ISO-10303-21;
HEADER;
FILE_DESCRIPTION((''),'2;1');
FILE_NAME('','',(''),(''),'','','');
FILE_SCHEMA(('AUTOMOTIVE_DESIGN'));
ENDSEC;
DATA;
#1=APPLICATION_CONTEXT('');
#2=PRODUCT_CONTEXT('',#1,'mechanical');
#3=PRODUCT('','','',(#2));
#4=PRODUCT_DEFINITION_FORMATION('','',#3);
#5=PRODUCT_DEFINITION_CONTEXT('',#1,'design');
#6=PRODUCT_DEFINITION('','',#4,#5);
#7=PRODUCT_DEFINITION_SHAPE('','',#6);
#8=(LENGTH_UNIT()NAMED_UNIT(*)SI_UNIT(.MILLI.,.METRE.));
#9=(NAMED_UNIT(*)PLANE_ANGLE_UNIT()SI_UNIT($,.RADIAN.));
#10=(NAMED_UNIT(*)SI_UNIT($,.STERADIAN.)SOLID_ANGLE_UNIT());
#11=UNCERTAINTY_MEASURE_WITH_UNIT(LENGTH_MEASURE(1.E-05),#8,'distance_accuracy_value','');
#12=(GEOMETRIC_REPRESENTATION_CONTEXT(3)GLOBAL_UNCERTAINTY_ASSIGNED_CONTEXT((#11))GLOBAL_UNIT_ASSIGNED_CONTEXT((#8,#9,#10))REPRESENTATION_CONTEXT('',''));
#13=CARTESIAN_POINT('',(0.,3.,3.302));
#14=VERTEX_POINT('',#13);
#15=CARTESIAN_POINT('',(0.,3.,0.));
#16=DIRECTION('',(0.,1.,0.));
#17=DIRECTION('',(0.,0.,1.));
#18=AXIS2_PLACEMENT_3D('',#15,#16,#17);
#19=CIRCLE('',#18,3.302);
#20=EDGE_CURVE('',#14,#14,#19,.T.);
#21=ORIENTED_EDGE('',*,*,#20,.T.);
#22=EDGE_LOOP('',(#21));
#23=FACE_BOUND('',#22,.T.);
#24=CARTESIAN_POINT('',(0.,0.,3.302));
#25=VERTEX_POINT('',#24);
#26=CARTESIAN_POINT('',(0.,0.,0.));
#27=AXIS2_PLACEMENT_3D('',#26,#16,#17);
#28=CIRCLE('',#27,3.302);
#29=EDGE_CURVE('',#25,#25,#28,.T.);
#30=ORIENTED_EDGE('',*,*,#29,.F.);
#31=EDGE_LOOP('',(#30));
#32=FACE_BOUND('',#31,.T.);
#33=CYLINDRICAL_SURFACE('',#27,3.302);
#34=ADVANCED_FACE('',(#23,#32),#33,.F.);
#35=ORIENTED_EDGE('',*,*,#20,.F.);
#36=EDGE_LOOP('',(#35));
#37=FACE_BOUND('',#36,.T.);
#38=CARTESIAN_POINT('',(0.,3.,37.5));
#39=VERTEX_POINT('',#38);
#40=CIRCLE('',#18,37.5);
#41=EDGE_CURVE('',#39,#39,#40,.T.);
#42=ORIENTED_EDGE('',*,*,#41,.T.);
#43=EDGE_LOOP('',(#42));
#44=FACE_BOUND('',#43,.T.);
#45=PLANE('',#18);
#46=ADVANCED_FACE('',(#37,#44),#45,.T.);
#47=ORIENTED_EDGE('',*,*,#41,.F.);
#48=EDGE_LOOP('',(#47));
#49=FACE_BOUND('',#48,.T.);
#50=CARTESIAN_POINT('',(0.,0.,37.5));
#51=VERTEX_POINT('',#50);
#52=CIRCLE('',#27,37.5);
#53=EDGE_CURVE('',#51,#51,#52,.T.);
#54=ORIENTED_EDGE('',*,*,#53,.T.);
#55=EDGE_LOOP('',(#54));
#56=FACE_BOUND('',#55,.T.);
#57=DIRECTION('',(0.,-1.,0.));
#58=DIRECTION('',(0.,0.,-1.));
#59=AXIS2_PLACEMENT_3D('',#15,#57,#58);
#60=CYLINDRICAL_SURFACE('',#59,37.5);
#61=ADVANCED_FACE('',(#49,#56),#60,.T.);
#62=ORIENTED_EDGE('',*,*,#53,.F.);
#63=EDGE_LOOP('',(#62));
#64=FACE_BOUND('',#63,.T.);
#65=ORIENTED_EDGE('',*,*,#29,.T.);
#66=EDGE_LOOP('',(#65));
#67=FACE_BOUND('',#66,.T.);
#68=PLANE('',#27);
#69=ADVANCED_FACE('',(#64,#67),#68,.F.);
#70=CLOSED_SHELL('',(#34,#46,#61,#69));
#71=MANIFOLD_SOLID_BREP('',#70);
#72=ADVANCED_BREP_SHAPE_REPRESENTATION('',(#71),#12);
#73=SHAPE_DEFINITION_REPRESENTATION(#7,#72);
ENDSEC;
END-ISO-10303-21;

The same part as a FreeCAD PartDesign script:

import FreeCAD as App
import Part
import Sketcher
Q = App.Units.Quantity

doc = App.newDocument("Part")
body = doc.addObject("PartDesign::Body", "Body")

# Sketch on XZ plane
sketch1 = doc.addObject("Sketcher::SketchObject", "Sketch")
body.addObject(sketch1)
sketch1.AttachmentSupport = (doc.XZ_Plane, [""])
sketch1.MapMode = "FlatFace"
sketch1.addGeometry(Part.Circle(App.Vector(0, 0, 0), App.Vector(0, 0, 1), 38), False)
sketch1.addConstraint(Sketcher.Constraint("Coincident", 0, 3, -1, 1))
sketch1.addConstraint(Sketcher.Constraint("Diameter", 0, Q("75 mm")))
pad1 = doc.addObject("PartDesign::Pad", "Pad")
body.addObject(pad1)
pad1.Profile = sketch1
pad1.Length = 3
pad1.Reversed = True

# Sketch on XZ plane
sketch2 = doc.addObject("Sketcher::SketchObject", "Sketch001")
body.addObject(sketch2)
sketch2.AttachmentSupport = (doc.XZ_Plane, [""])
sketch2.MapMode = "FlatFace"
sketch2.AttachmentOffset = App.Placement(App.Vector(0, 0, -3), App.Rotation())
sketch2.addGeometry(Part.Circle(App.Vector(0, 0, 0), App.Vector(0, 0, 1), 3.3), False)
sketch2.addConstraint(Sketcher.Constraint("Coincident", 0, 3, -1, 1))
sketch2.addConstraint(Sketcher.Constraint("Diameter", 0, Q("6.604 mm")))
pocket1 = doc.addObject("PartDesign::Pocket", "Pocket")
body.addObject(pocket1)
pocket1.Profile = sketch2
pocket1.Type = "ThroughAll"
pocket1.Reversed = True

doc.recompute()
